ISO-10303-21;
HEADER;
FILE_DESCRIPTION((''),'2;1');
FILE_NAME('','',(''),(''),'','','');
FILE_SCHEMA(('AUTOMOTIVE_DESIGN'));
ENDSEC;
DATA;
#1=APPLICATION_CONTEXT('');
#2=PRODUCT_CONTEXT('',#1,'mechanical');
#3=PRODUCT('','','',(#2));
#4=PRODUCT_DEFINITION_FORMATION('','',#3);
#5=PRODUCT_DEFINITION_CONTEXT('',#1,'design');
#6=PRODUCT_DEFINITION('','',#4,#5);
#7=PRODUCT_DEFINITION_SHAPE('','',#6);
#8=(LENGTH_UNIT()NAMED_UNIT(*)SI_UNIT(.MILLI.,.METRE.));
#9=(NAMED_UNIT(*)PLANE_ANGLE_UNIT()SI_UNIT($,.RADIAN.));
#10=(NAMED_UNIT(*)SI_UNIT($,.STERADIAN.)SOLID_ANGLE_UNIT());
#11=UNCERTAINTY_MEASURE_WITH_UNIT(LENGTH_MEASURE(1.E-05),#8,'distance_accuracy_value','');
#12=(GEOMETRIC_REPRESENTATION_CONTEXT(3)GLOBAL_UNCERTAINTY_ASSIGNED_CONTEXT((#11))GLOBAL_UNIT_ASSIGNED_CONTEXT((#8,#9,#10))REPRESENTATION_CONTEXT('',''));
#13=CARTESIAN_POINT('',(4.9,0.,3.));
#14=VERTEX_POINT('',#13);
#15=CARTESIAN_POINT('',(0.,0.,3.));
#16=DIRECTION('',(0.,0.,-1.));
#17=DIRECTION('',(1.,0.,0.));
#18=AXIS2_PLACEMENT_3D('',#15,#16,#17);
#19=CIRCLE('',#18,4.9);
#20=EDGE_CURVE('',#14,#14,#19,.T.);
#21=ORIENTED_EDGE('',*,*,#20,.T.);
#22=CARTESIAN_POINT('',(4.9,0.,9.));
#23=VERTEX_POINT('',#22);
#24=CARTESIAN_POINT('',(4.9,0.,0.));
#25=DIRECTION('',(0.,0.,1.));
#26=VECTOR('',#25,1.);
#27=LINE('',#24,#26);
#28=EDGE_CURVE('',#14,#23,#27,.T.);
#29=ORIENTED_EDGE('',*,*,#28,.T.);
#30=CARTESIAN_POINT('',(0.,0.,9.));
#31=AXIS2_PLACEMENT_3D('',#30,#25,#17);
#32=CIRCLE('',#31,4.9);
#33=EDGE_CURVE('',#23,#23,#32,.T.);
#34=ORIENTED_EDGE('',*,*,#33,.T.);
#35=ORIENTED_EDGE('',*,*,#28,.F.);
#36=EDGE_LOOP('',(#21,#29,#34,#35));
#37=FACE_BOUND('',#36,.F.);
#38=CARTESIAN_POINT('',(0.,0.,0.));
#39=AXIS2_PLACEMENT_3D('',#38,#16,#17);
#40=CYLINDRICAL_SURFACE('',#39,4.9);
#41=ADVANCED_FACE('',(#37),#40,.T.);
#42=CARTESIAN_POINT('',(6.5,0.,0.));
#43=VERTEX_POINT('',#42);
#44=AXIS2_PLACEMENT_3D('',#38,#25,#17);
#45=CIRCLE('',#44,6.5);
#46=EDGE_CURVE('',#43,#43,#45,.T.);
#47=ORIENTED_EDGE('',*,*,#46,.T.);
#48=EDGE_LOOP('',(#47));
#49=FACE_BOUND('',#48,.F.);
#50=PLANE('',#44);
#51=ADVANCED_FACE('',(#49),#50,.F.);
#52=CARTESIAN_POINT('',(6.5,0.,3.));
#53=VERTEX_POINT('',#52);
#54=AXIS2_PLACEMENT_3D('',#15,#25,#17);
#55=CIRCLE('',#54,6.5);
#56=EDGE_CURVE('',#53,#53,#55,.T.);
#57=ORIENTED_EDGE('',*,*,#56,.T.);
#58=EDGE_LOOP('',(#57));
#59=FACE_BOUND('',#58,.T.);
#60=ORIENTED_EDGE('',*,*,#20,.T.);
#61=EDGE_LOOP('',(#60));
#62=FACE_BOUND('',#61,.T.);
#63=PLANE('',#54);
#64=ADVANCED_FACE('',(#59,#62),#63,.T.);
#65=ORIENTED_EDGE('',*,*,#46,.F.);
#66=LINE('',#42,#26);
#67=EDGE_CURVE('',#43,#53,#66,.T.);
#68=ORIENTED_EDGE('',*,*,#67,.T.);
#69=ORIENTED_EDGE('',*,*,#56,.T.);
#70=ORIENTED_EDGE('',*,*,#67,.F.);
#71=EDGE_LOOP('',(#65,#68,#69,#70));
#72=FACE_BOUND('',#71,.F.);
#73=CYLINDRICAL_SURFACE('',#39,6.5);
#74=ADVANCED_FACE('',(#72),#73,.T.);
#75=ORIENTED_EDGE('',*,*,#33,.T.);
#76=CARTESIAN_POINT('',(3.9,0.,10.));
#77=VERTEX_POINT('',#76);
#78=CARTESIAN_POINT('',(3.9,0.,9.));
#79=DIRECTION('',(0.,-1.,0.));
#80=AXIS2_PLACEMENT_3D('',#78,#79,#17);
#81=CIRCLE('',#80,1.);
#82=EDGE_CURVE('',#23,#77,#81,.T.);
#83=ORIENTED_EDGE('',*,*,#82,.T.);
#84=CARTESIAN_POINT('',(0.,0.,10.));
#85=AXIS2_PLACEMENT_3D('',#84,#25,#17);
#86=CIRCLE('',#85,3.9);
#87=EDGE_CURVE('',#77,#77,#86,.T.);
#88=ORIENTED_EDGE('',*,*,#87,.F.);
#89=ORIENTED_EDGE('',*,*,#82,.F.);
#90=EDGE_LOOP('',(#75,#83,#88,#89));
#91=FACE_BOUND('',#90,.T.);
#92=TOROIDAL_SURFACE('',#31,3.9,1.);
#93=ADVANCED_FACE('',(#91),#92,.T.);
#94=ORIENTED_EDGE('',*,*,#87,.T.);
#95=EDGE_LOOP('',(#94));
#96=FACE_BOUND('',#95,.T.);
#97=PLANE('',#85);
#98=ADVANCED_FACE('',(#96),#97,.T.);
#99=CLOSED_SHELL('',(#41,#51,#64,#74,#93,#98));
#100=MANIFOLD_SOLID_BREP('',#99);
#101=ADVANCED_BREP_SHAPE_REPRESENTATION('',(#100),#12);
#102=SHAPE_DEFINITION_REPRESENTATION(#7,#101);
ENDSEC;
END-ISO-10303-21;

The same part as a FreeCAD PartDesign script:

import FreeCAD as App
import Part
import Sketcher


def edges_at(feature, points):
    """Names of the edges that pass closest to the given points."""
    edges = feature.Shape.Edges
    near = lambda p: min(range(len(edges)), key=lambda i: edges[i].distToShape(Part.Vertex(*p))[0])
    return sorted({f"Edge{near(p) + 1}" for p in points})

doc = App.newDocument("Part")
params = doc.addObject("Spreadsheet::Sheet", "Params")
for row, (alias, value) in enumerate([
    ("sketch1_diameter", "13 mm"),
    ("pad1_length", "3 mm"),
    ("sketch2_diameter", "9.8 mm"),
    ("pad2_length", "10 mm"),
    ("fillet_radius", "1 mm"),
], start=1):
    params.set(f"A{row}", alias)
    params.set(f"B{row}", "=" + value)
    params.setAlias(f"B{row}", alias)

body = doc.addObject("PartDesign::Body", "Body")

sketch1 = body.newObject("Sketcher::SketchObject", "Sketch")
sketch1.AttachmentSupport = (doc.getObject("XY_Plane"), [""])
sketch1.MapMode = "FlatFace"
sketch1.addGeometry(Part.Circle(App.Vector(0, 0, 0), App.Vector(0, 0, 1), 6), False)
sketch1.addConstraint(Sketcher.Constraint("Coincident", 0, 3, -1, 1))
sketch1.addConstraint(Sketcher.Constraint("Diameter", 0, 13.0))
sketch1.setExpression("Constraints[1]", "Params.sketch1_diameter")
pad1 = body.newObject("PartDesign::Pad", "Pad")
pad1.Profile = sketch1
pad1.setExpression("Length", "Params.pad1_length")

sketch2 = body.newObject("Sketcher::SketchObject", "Sketch001")
sketch2.AttachmentSupport = (doc.getObject("XY_Plane"), [""])
sketch2.MapMode = "FlatFace"
sketch2.addGeometry(Part.Circle(App.Vector(0, 0, 0), App.Vector(0, 0, 1), 4.9), False)
sketch2.addConstraint(Sketcher.Constraint("Coincident", 0, 3, -1, 1))
sketch2.addConstraint(Sketcher.Constraint("Diameter", 0, 9.8))
sketch2.setExpression("Constraints[1]", "Params.sketch2_diameter")
pad2 = body.newObject("PartDesign::Pad", "Pad001")
pad2.Profile = sketch2
pad2.setExpression("Length", "Params.pad2_length")
doc.recompute()

fillet = body.newObject("PartDesign::Fillet", "Fillet")
fillet.Base = (pad2, edges_at(pad2, [(-4.9, 0, 10)]))
fillet.setExpression("Radius", "Params.fillet_radius")

doc.recompute()
